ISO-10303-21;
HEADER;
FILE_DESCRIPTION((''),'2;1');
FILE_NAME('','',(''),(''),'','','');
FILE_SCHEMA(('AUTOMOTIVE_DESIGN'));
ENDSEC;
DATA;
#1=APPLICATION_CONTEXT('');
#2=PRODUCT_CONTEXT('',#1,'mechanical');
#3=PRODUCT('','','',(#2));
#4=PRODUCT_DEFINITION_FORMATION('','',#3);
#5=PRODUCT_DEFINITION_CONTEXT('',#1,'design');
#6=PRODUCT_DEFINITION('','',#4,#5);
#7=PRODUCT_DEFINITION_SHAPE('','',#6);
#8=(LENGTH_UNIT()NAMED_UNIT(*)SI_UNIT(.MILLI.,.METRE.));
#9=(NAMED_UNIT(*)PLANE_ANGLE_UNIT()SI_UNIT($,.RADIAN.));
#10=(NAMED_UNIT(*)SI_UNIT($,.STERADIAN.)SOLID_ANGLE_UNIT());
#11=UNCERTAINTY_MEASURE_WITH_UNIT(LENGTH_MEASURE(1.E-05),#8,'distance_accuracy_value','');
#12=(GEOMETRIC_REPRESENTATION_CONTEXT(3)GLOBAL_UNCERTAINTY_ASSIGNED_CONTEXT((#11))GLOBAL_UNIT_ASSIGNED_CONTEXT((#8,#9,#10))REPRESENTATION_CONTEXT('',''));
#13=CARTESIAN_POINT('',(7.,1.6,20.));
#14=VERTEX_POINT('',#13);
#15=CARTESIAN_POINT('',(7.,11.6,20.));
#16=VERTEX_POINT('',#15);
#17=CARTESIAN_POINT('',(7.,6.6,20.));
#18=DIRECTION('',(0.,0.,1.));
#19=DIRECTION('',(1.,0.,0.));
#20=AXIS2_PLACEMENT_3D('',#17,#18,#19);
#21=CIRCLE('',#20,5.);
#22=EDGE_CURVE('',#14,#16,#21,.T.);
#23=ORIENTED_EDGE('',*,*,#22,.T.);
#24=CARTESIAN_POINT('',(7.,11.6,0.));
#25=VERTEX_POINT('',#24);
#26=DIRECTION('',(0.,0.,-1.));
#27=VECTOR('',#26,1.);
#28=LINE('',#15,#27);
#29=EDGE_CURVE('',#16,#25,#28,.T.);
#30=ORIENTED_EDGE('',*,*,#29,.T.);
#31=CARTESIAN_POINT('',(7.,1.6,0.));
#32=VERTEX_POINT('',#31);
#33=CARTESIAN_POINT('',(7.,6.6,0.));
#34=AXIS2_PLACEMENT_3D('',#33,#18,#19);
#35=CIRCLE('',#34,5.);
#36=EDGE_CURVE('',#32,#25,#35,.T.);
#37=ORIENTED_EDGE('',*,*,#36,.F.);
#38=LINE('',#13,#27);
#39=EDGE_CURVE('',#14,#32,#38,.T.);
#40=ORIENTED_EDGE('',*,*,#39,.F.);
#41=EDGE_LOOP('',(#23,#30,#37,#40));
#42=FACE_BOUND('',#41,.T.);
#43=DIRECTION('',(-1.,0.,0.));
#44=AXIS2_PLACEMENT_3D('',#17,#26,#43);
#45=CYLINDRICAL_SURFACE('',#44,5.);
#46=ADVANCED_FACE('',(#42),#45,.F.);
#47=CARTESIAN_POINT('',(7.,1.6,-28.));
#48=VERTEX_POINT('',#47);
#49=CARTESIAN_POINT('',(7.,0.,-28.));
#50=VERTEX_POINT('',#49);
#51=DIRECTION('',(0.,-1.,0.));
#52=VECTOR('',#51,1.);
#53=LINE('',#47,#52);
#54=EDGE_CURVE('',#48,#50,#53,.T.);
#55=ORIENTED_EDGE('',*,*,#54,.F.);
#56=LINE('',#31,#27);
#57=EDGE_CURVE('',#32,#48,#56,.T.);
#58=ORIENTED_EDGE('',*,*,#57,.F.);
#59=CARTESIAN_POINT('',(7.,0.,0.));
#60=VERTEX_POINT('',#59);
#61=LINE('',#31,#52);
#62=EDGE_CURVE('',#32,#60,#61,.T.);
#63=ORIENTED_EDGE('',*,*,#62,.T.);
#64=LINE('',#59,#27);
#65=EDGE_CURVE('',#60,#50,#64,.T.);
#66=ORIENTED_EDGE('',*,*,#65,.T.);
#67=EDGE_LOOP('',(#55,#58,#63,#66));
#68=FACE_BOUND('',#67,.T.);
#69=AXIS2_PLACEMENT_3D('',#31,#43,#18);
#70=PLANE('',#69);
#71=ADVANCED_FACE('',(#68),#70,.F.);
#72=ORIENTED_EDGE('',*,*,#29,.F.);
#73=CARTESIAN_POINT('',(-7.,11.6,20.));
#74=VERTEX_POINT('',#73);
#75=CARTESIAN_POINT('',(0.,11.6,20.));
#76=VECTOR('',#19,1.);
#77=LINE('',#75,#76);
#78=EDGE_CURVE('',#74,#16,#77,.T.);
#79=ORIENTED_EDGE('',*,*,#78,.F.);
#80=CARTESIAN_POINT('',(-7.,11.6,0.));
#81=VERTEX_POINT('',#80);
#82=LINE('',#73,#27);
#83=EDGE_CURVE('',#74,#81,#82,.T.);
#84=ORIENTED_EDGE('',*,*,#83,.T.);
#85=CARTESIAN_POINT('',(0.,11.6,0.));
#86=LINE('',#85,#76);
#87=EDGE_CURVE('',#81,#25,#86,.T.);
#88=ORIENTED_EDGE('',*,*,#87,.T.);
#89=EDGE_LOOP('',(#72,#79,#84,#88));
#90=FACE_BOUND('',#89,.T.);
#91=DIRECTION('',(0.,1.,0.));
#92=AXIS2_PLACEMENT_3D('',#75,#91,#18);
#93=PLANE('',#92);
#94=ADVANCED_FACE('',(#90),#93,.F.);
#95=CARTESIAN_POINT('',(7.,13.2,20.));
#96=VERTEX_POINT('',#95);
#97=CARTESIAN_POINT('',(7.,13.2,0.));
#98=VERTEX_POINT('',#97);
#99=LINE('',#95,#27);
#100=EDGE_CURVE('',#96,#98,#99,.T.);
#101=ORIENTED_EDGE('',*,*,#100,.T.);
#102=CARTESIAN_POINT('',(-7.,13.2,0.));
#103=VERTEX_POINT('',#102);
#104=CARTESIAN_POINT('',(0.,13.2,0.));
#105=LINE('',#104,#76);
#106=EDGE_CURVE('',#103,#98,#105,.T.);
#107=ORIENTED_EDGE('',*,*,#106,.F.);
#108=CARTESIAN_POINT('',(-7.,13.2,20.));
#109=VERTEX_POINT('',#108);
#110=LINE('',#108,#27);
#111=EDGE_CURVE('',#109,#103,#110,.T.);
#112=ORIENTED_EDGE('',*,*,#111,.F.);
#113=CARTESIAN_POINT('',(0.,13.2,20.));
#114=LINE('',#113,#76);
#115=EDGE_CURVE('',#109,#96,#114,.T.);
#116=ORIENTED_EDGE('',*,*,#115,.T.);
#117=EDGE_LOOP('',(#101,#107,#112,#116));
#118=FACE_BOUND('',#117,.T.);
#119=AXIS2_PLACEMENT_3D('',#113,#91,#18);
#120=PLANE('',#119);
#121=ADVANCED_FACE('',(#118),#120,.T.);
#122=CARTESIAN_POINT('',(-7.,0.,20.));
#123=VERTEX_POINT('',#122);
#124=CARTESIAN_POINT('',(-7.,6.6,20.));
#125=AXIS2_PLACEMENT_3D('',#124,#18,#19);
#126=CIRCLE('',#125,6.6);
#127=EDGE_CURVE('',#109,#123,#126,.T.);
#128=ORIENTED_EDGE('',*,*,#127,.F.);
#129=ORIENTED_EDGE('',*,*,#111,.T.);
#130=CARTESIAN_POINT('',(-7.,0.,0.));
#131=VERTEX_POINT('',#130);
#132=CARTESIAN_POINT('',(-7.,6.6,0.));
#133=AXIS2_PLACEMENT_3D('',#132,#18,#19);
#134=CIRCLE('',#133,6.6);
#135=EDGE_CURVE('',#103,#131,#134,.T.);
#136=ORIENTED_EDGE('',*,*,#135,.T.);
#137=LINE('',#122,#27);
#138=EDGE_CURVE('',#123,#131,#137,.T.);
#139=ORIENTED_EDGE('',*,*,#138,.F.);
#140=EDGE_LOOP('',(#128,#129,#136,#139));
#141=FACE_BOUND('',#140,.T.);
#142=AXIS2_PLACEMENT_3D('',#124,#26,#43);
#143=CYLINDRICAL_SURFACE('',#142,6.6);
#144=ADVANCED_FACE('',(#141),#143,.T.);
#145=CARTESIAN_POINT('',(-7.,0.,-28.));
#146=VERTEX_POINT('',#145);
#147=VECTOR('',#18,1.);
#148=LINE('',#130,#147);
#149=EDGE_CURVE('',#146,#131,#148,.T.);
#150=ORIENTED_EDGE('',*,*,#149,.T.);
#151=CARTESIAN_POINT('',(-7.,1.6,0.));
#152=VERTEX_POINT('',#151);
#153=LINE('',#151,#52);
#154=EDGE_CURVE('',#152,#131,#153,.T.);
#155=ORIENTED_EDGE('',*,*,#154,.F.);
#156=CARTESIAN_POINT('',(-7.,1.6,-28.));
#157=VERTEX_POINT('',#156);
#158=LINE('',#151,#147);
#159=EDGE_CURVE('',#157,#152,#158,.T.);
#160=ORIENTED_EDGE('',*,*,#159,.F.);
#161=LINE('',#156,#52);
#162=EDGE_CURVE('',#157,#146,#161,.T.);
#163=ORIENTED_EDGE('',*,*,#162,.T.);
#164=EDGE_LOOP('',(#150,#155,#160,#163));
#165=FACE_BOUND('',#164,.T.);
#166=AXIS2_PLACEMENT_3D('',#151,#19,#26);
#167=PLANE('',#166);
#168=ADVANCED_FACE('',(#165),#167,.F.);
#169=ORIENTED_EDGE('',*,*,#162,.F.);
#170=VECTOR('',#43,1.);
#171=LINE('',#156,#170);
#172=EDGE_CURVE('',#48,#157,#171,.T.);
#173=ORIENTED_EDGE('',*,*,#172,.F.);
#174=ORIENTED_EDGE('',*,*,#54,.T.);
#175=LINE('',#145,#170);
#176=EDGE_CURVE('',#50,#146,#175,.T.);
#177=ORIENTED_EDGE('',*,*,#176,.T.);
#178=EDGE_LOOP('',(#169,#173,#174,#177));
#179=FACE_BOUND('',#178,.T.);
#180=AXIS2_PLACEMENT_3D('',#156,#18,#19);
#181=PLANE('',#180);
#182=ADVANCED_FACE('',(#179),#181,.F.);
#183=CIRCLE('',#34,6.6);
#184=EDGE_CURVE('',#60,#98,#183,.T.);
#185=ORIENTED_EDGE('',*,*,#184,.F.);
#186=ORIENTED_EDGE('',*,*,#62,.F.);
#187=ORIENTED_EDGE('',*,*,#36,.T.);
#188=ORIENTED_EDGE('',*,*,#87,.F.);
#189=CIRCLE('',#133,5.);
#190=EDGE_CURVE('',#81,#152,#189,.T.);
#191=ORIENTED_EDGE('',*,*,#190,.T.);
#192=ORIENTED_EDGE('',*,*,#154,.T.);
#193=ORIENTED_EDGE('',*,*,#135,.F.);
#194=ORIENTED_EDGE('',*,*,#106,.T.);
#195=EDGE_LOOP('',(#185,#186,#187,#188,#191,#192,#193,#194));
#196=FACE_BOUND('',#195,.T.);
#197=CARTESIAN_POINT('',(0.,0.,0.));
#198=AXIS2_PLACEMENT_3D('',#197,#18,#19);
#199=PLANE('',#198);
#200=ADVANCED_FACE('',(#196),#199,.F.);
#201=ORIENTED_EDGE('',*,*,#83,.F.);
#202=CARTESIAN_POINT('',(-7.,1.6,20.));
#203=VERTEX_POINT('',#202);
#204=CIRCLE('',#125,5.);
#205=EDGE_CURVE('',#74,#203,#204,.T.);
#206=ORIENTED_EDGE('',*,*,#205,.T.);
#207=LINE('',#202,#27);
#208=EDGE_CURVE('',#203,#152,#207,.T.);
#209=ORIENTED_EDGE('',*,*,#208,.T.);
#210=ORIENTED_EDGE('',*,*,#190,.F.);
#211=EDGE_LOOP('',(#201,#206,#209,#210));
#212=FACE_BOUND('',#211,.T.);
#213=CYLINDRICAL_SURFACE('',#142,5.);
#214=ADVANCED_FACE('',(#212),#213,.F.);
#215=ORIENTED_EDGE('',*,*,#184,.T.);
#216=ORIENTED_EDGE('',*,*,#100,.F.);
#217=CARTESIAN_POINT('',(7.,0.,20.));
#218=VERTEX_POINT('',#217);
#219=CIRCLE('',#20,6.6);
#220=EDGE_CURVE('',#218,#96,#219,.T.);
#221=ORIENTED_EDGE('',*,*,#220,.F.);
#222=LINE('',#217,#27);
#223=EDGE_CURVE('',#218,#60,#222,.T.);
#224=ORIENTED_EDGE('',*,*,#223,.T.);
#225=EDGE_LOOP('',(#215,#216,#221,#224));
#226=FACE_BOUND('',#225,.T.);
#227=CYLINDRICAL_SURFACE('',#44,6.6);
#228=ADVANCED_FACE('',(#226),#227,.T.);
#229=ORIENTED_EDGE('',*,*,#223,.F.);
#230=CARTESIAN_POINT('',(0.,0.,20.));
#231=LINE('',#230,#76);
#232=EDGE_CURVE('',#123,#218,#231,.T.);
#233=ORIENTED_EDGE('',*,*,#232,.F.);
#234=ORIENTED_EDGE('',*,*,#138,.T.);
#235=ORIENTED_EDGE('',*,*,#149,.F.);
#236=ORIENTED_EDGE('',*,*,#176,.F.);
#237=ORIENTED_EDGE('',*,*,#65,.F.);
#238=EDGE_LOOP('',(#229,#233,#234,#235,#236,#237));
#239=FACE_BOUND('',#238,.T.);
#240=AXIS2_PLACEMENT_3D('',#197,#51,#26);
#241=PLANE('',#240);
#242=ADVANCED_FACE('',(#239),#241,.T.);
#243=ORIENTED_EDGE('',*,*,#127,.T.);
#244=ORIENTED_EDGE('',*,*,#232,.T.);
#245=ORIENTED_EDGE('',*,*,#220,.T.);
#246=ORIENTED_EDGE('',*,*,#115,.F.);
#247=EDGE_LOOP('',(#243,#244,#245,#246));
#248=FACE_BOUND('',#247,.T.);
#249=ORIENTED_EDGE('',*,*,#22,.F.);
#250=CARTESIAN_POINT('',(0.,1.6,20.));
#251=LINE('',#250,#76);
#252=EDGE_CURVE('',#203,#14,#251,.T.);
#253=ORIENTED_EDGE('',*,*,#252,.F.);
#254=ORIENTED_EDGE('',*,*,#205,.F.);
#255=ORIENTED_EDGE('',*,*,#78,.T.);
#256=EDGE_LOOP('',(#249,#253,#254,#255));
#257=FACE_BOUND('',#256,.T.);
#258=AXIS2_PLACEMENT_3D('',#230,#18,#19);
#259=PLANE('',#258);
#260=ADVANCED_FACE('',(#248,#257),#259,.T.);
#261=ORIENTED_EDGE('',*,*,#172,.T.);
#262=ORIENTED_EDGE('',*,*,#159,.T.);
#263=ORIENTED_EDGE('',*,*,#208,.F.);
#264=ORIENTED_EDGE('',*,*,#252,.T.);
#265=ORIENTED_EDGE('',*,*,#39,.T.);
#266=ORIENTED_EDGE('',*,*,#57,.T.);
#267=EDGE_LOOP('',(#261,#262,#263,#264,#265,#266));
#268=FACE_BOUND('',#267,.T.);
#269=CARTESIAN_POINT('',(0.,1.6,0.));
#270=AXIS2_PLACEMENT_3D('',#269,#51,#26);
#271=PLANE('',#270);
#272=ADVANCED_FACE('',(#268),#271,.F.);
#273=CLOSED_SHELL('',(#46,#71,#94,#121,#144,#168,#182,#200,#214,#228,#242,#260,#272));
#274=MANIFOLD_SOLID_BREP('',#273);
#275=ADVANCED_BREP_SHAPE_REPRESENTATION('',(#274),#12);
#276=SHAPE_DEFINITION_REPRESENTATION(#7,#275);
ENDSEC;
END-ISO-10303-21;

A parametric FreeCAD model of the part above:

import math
import FreeCAD as App
import Part
import Sketcher

V = App.Vector


def add_polygon(sketch, points):
    """Adds a closed chain of lines whose ends are joined by coincident constraints."""
    first, n = sketch.GeometryCount, len(points)
    for a, b in zip(points, points[1:] + points[:1]):
        sketch.addGeometry(Part.LineSegment(App.Vector(*a, 0), App.Vector(*b, 0)), False)
    for i in range(n):
        sketch.addConstraint(Sketcher.Constraint("Coincident", first + i, 2, first + (i + 1) % n, 1))

doc = App.newDocument("Part")
params = doc.addObject("Spreadsheet::Sheet", "Params")
for row, (alias, value) in enumerate([
    ("sketch1_width", "14 mm"),
    ("sketch1_height", "28 mm"),
    ("pad1_length", "1.6 mm"),
    ("sketch2_radius", "5 mm"),
    ("sketch2_radius2", "6.6 mm"),
    ("sketch2_width", "14 mm"),
    ("pad2_length", "20 mm"),
], start=1):
    params.set(f"A{row}", alias)
    params.set(f"B{row}", "=" + value)
    params.setAlias(f"B{row}", alias)

body = doc.addObject("PartDesign::Body", "Body")

sketch1 = doc.addObject("Sketcher::SketchObject", "Sketch")
body.addObject(sketch1)
sketch1.AttachmentSupport = (doc.XZ_Plane, [""])
sketch1.MapMode = "FlatFace"
add_polygon(sketch1, [(-7, -28), (-7, 0), (7, 0), (7, -28)])
sketch1.addConstraint([
    Sketcher.Constraint("Vertical", 0),
    Sketcher.Constraint("Horizontal", 1),
    Sketcher.Constraint("Vertical", 2),
    Sketcher.Constraint("Horizontal", 3),
    Sketcher.Constraint("Symmetric", 0, 2, 1, 2, -1, 1),
    Sketcher.Constraint("DistanceX", 1, 1, 1, 2, 14.0),
    Sketcher.Constraint("DistanceY", 0, 1, 0, 2, 28.0),
])
sketch1.setExpression("Constraints[9]", "Params.sketch1_width")
sketch1.setExpression("Constraints[10]", "Params.sketch1_height")
pad1 = doc.addObject("PartDesign::Pad", "Pad")
body.addObject(pad1)
pad1.Profile = sketch1
pad1.setExpression("Length", "Params.pad1_length")
pad1.Reversed = True

sketch2 = doc.addObject("Sketcher::SketchObject", "Sketch001")
body.addObject(sketch2)
sketch2.AttachmentSupport = (doc.XY_Plane, [""])
sketch2.MapMode = "FlatFace"
sketch2.addGeometry([
    Part.LineSegment(V(7, 13, 0), V(-7, 13, 0)),
    Part.ArcOfCircle(Part.Circle(V(-7, 7, 0), V(0, 0, 1), 7), math.radians(90), math.radians(270)),
    Part.LineSegment(V(-7, 0, 0), V(7, 0, 0)),
    Part.ArcOfCircle(Part.Circle(V(7, 7, 0), V(0, 0, 1), 7), math.radians(-90), math.radians(90)),
    Part.ArcOfCircle(Part.Circle(V(7, 7, 0), V(0, 0, 1), 5), math.radians(-90), math.radians(90)),
    Part.LineSegment(V(7, 2, 0), V(-7, 2, 0)),
    Part.ArcOfCircle(Part.Circle(V(-7, 7, 0), V(0, 0, 1), 5), math.radians(90), math.radians(270)),
    Part.LineSegment(V(-7, 12, 0), V(7, 12, 0)),
], False)
sketch2.addConstraint([
    Sketcher.Constraint("Tangent", 0, 2, 1, 1),
    Sketcher.Constraint("Tangent", 1, 2, 2, 1),
    Sketcher.Constraint("Tangent", 2, 2, 3, 1),
    Sketcher.Constraint("Tangent", 3, 2, 0, 1),
    Sketcher.Constraint("Tangent", 4, 1, 5, 1),
    Sketcher.Constraint("Tangent", 5, 2, 6, 2),
    Sketcher.Constraint("Tangent", 6, 1, 7, 1),
    Sketcher.Constraint("Tangent", 7, 2, 4, 2),
    Sketcher.Constraint("Horizontal", 0),
    Sketcher.Constraint("Horizontal", 2),
    Sketcher.Constraint("Horizontal", 5),
    Sketcher.Constraint("Horizontal", 7),
    Sketcher.Constraint("Coincident", 4, 3, 3, 3),
    Sketcher.Constraint("Symmetric", 1, 2, 2, 2, -1, 1),
    Sketcher.Constraint("Vertical", 6, 3, 0, 2),
    Sketcher.Constraint("Radius", 4, 5.0),
    Sketcher.Constraint("Radius", 1, 6.6),
    Sketcher.Constraint("DistanceX", 0, 2, 0, 1, 14.0),
])
sketch2.setExpression("Constraints[15]", "Params.sketch2_radius")
sketch2.setExpression("Constraints[16]", "Params.sketch2_radius2")
sketch2.setExpression("Constraints[17]", "Params.sketch2_width")
pad2 = doc.addObject("PartDesign::Pad", "Pad001")
body.addObject(pad2)
pad2.Profile = sketch2
pad2.setExpression("Length", "Params.pad2_length")

doc.recompute()
